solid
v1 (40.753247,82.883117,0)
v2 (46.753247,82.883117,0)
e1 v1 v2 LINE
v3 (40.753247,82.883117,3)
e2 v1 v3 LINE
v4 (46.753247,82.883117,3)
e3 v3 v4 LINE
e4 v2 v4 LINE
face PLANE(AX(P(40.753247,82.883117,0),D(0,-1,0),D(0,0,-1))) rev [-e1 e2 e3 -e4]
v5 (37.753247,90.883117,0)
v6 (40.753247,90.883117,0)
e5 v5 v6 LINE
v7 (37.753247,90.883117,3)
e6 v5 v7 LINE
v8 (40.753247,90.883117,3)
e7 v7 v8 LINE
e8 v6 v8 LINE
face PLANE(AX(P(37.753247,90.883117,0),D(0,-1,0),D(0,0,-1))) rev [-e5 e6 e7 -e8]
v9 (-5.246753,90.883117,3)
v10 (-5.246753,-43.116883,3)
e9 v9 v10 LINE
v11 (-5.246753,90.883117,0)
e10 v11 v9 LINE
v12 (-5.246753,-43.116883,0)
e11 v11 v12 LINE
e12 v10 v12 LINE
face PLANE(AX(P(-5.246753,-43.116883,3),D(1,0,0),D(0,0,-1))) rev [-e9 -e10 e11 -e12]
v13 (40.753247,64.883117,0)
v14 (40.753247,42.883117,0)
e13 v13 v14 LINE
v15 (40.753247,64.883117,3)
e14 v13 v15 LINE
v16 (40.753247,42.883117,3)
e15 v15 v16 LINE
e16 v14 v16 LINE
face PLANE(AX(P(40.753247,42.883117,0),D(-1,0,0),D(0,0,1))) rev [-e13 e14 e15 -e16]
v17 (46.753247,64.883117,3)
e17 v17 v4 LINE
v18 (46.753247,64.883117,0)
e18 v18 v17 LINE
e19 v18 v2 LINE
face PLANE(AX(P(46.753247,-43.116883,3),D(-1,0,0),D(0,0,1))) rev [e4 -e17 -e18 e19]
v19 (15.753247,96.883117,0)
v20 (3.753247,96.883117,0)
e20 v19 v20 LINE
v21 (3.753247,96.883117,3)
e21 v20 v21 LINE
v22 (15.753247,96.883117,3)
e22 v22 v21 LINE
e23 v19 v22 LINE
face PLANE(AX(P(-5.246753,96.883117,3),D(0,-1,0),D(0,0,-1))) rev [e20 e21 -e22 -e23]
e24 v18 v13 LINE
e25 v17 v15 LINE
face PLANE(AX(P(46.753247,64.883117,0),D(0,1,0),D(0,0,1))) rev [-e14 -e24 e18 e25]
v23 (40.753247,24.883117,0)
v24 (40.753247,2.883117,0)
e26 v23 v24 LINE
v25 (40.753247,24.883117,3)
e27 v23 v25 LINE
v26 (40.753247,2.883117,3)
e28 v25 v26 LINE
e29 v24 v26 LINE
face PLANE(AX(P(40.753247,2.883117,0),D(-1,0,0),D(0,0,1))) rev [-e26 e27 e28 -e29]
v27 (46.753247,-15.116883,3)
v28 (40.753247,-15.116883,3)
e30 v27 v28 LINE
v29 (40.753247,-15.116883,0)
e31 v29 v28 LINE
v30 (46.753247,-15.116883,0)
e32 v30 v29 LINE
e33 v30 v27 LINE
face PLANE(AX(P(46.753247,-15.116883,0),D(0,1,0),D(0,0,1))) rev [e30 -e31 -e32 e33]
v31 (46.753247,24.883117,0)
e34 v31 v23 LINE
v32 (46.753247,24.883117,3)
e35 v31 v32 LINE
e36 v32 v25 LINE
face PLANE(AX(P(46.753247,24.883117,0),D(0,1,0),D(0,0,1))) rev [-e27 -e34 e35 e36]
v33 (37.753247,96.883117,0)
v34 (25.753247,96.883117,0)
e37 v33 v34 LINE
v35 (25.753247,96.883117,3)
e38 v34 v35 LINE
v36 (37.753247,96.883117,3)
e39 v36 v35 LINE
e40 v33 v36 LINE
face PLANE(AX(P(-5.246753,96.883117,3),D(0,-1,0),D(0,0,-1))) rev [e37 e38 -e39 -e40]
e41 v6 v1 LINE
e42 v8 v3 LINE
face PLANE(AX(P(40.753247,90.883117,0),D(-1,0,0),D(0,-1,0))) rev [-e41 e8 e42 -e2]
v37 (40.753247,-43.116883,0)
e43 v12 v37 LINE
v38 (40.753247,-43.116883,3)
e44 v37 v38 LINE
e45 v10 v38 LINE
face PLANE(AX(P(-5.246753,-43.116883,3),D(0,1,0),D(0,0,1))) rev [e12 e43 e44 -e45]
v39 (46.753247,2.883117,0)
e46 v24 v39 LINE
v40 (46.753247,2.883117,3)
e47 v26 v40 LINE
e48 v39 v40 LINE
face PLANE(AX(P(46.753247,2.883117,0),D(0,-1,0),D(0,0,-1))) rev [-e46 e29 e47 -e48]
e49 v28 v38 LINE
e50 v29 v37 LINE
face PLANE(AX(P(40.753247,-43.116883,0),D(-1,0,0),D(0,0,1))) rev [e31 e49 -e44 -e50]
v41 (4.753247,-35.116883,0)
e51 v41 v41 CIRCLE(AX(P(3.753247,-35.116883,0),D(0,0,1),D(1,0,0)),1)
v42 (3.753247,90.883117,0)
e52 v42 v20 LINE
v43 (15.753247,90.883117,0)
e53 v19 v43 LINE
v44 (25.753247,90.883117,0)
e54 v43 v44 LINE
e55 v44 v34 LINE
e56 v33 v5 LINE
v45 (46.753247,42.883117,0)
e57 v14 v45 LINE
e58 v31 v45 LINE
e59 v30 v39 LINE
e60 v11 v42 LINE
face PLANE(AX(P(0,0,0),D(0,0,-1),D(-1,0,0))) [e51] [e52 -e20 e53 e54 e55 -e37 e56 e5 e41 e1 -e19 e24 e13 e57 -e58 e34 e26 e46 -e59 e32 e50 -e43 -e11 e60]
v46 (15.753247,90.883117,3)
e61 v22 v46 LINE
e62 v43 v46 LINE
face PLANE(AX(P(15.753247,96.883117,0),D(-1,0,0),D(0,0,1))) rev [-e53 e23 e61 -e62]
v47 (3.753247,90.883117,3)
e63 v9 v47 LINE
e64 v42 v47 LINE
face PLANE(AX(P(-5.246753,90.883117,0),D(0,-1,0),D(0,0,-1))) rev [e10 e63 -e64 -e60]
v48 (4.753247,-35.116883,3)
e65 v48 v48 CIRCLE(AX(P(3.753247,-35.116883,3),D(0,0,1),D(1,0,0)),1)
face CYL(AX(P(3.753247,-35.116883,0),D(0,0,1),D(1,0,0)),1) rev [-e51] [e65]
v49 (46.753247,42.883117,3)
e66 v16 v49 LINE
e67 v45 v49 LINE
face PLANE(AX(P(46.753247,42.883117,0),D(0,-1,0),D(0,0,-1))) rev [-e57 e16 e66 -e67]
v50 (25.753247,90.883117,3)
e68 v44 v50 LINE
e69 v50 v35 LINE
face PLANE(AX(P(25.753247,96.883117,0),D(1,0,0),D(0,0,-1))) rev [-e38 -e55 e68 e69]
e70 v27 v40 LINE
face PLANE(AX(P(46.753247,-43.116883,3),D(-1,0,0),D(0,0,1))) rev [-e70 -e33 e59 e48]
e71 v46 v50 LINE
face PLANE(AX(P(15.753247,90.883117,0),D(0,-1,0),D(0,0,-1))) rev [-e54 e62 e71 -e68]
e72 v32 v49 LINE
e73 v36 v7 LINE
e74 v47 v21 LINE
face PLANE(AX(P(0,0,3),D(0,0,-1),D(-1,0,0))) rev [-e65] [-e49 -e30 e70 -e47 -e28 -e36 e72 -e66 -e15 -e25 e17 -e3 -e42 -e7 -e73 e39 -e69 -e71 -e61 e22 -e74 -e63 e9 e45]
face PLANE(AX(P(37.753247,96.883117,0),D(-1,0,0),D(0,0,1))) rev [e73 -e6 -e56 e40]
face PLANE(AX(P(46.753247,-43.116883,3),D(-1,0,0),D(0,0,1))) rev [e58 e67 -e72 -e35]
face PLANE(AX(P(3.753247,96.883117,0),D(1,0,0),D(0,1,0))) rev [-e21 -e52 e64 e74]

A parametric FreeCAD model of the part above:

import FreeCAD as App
import Part
import Sketcher
from FreeCAD import Vector
Q = App.Units.Quantity


def add_polygon(sketch, points):
    """Adds a closed chain of lines whose ends are joined by coincident constraints."""
    first, n = sketch.GeometryCount, len(points)
    for a, b in zip(points, points[1:] + points[:1]):
        sketch.addGeometry(Part.LineSegment(App.Vector(*a, 0), App.Vector(*b, 0)), False)
    for i in range(n):
        sketch.addConstraint(Sketcher.Constraint("Coincident", first + i, 2, first + (i + 1) % n, 1))

doc = App.newDocument("Part")
body = doc.addObject("PartDesign::Body", "Body")

sketch1 = body.newObject("Sketcher::SketchObject", "Sketch")
sketch1.AttachmentSupport = (doc.getObject("XY_Plane"), [""])
sketch1.MapMode = "FlatFace"
add_polygon(sketch1, [(-5, 97), (-5, -43), (47, -43), (47, 97)])
sketch1.addConstraint([
    Sketcher.Constraint("Vertical", 0),
    Sketcher.Constraint("Horizontal", 1),
    Sketcher.Constraint("Vertical", 2),
    Sketcher.Constraint("Horizontal", 3),
    Sketcher.Constraint("DistanceX", 1, 1, 1, 2, Q("52 mm")),
    Sketcher.Constraint("DistanceY", 0, 2, 0, 1, Q("140 mm")),
    Sketcher.Constraint("DistanceX", 0, 2, -1, 1, Q("5.246753 mm")),
    Sketcher.Constraint("DistanceY", 0, 2, -1, 1, Q("43.116883 mm")),
])
pad1 = body.newObject("PartDesign::Pad", "Pad")
pad1.Profile = sketch1
pad1.Length = 3

sketch2 = body.newObject("Sketcher::SketchObject", "Sketch001")
sketch2.AttachmentSupport = (doc.getObject("XY_Plane"), [""])
sketch2.MapMode = "FlatFace"
sketch2.AttachmentOffset = App.Placement(Vector(0, 0, 3), App.Rotation())
sketch2.addGeometry(Part.Circle(Vector(3.8, -35.1, 0), Vector(0, 0, 1), 1), False)
add_polygon(sketch2, [(-5.2, 96.9), (-5.2, 90.9), (3.8, 90.9), (3.8, 96.9)])
add_polygon(sketch2, [(15.8, 96.9), (15.8, 90.9), (25.8, 90.9), (25.8, 96.9)])
add_polygon(sketch2, [(37.8, 96.9), (37.8, 90.9), (40.8, 90.9), (40.8, 82.9), (46.8, 82.9), (46.8, 96.9)])
add_polygon(sketch2, [(40.8, 64.9), (40.8, 42.9), (46.8, 42.9), (46.8, 64.9)])
add_polygon(sketch2, [(40.8, 24.9), (40.8, 2.9), (46.8, 2.9), (46.8, 24.9)])
add_polygon(sketch2, [(40.8, -15.1), (40.8, -43.1), (46.8, -43.1), (46.8, -15.1)])
sketch2.addConstraint([
    Sketcher.Constraint("Vertical", 1),
    Sketcher.Constraint("Horizontal", 2),
    Sketcher.Constraint("Vertical", 3),
    Sketcher.Constraint("Horizontal", 4),
    Sketcher.Constraint("Vertical", 5),
    Sketcher.Constraint("Horizontal", 6),
    Sketcher.Constraint("Vertical", 7),
    Sketcher.Constraint("Horizontal", 8),
    Sketcher.Constraint("Vertical", 9),
    Sketcher.Constraint("Horizontal", 10),
    Sketcher.Constraint("Vertical", 11),
    Sketcher.Constraint("Horizontal", 12),
    Sketcher.Constraint("Vertical", 13),
    Sketcher.Constraint("Horizontal", 14),
    Sketcher.Constraint("Vertical", 15),
    Sketcher.Constraint("Horizontal", 16),
    Sketcher.Constraint("Vertical", 17),
    Sketcher.Constraint("Horizontal", 18),
    Sketcher.Constraint("Vertical", 19),
    Sketcher.Constraint("Horizontal", 20),
    Sketcher.Constraint("Vertical", 21),
    Sketcher.Constraint("Horizontal", 22),
    Sketcher.Constraint("Vertical", 23),
    Sketcher.Constraint("Horizontal", 24),
    Sketcher.Constraint("Vertical", 25),
    Sketcher.Constraint("Horizontal", 26),
    Sketcher.Constraint("Horizontal", 2, 2, 5, 2),
    Sketcher.Constraint("Horizontal", 4, 2, 7, 2),
    Sketcher.Constraint("Horizontal", 6, 2, 9, 2),
    Sketcher.Constraint("Horizontal", 8, 2, 13, 2),
    Sketcher.Constraint("Vertical", 0, 3, 2, 2),
    Sketcher.Constraint("Vertical", 11, 2, 15, 2),
    Sketcher.Constraint("Vertical", 13, 2, 16, 2),
    Sketcher.Constraint("Vertical", 18, 2, 19, 2),
    Sketcher.Constraint("Vertical", 17, 2, 20, 2),
    Sketcher.Constraint("Vertical", 22, 2, 23, 2),
    Sketcher.Constraint("Vertical", 21, 2, 24, 2),
    Sketcher.Constraint("Equal", 4, 14),
    Sketcher.Constraint("Equal", 26, 1),
    Sketcher.Constraint("Equal", 17, 19),
    Sketcher.Constraint("Diameter", 0, Q("2 mm")),
    Sketcher.Constraint("DistanceX", 2, 1, 2, 2, Q("9 mm")),
    Sketcher.Constraint("DistanceX", 6, 1, 6, 2, Q("10 mm")),
    Sketcher.Constraint("DistanceX", 10, 1, 10, 2, Q("3 mm")),
    Sketcher.Constraint("DistanceY", 11, 2, 11, 1, Q("8 mm")),
    Sketcher.Constraint("DistanceY", 15, 2, 15, 1, Q("22 mm")),
    Sketcher.Constraint("DistanceY", 23, 2, 23, 1, Q("28 mm")),
    Sketcher.Constraint("DistanceY", 0, 3, 1, 2, Q("126 mm")),
    Sketcher.Constraint("DistanceX", 2, 2, 5, 2, Q("12 mm")),
    Sketcher.Constraint("DistanceX", 6, 2, 9, 2, Q("12 mm")),
    Sketcher.Constraint("DistanceY", 15, 2, 11, 2, Q("40 mm")),
    Sketcher.Constraint("DistanceY", 19, 2, 15, 2, Q("40 mm")),
    Sketcher.Constraint("DistanceY", 23, 2, 0, 3, Q("8 mm")),
    Sketcher.Constraint("DistanceX", -1, 1, 0, 3, Q("3.753247 mm")),
    Sketcher.Constraint("DistanceY", 0, 3, -1, 1, Q("35.116883 mm")),
])
pocket1 = body.newObject("PartDesign::Pocket", "Pocket")
pocket1.Profile = sketch2
pocket1.Type = "ThroughAll"

doc.recompute()
